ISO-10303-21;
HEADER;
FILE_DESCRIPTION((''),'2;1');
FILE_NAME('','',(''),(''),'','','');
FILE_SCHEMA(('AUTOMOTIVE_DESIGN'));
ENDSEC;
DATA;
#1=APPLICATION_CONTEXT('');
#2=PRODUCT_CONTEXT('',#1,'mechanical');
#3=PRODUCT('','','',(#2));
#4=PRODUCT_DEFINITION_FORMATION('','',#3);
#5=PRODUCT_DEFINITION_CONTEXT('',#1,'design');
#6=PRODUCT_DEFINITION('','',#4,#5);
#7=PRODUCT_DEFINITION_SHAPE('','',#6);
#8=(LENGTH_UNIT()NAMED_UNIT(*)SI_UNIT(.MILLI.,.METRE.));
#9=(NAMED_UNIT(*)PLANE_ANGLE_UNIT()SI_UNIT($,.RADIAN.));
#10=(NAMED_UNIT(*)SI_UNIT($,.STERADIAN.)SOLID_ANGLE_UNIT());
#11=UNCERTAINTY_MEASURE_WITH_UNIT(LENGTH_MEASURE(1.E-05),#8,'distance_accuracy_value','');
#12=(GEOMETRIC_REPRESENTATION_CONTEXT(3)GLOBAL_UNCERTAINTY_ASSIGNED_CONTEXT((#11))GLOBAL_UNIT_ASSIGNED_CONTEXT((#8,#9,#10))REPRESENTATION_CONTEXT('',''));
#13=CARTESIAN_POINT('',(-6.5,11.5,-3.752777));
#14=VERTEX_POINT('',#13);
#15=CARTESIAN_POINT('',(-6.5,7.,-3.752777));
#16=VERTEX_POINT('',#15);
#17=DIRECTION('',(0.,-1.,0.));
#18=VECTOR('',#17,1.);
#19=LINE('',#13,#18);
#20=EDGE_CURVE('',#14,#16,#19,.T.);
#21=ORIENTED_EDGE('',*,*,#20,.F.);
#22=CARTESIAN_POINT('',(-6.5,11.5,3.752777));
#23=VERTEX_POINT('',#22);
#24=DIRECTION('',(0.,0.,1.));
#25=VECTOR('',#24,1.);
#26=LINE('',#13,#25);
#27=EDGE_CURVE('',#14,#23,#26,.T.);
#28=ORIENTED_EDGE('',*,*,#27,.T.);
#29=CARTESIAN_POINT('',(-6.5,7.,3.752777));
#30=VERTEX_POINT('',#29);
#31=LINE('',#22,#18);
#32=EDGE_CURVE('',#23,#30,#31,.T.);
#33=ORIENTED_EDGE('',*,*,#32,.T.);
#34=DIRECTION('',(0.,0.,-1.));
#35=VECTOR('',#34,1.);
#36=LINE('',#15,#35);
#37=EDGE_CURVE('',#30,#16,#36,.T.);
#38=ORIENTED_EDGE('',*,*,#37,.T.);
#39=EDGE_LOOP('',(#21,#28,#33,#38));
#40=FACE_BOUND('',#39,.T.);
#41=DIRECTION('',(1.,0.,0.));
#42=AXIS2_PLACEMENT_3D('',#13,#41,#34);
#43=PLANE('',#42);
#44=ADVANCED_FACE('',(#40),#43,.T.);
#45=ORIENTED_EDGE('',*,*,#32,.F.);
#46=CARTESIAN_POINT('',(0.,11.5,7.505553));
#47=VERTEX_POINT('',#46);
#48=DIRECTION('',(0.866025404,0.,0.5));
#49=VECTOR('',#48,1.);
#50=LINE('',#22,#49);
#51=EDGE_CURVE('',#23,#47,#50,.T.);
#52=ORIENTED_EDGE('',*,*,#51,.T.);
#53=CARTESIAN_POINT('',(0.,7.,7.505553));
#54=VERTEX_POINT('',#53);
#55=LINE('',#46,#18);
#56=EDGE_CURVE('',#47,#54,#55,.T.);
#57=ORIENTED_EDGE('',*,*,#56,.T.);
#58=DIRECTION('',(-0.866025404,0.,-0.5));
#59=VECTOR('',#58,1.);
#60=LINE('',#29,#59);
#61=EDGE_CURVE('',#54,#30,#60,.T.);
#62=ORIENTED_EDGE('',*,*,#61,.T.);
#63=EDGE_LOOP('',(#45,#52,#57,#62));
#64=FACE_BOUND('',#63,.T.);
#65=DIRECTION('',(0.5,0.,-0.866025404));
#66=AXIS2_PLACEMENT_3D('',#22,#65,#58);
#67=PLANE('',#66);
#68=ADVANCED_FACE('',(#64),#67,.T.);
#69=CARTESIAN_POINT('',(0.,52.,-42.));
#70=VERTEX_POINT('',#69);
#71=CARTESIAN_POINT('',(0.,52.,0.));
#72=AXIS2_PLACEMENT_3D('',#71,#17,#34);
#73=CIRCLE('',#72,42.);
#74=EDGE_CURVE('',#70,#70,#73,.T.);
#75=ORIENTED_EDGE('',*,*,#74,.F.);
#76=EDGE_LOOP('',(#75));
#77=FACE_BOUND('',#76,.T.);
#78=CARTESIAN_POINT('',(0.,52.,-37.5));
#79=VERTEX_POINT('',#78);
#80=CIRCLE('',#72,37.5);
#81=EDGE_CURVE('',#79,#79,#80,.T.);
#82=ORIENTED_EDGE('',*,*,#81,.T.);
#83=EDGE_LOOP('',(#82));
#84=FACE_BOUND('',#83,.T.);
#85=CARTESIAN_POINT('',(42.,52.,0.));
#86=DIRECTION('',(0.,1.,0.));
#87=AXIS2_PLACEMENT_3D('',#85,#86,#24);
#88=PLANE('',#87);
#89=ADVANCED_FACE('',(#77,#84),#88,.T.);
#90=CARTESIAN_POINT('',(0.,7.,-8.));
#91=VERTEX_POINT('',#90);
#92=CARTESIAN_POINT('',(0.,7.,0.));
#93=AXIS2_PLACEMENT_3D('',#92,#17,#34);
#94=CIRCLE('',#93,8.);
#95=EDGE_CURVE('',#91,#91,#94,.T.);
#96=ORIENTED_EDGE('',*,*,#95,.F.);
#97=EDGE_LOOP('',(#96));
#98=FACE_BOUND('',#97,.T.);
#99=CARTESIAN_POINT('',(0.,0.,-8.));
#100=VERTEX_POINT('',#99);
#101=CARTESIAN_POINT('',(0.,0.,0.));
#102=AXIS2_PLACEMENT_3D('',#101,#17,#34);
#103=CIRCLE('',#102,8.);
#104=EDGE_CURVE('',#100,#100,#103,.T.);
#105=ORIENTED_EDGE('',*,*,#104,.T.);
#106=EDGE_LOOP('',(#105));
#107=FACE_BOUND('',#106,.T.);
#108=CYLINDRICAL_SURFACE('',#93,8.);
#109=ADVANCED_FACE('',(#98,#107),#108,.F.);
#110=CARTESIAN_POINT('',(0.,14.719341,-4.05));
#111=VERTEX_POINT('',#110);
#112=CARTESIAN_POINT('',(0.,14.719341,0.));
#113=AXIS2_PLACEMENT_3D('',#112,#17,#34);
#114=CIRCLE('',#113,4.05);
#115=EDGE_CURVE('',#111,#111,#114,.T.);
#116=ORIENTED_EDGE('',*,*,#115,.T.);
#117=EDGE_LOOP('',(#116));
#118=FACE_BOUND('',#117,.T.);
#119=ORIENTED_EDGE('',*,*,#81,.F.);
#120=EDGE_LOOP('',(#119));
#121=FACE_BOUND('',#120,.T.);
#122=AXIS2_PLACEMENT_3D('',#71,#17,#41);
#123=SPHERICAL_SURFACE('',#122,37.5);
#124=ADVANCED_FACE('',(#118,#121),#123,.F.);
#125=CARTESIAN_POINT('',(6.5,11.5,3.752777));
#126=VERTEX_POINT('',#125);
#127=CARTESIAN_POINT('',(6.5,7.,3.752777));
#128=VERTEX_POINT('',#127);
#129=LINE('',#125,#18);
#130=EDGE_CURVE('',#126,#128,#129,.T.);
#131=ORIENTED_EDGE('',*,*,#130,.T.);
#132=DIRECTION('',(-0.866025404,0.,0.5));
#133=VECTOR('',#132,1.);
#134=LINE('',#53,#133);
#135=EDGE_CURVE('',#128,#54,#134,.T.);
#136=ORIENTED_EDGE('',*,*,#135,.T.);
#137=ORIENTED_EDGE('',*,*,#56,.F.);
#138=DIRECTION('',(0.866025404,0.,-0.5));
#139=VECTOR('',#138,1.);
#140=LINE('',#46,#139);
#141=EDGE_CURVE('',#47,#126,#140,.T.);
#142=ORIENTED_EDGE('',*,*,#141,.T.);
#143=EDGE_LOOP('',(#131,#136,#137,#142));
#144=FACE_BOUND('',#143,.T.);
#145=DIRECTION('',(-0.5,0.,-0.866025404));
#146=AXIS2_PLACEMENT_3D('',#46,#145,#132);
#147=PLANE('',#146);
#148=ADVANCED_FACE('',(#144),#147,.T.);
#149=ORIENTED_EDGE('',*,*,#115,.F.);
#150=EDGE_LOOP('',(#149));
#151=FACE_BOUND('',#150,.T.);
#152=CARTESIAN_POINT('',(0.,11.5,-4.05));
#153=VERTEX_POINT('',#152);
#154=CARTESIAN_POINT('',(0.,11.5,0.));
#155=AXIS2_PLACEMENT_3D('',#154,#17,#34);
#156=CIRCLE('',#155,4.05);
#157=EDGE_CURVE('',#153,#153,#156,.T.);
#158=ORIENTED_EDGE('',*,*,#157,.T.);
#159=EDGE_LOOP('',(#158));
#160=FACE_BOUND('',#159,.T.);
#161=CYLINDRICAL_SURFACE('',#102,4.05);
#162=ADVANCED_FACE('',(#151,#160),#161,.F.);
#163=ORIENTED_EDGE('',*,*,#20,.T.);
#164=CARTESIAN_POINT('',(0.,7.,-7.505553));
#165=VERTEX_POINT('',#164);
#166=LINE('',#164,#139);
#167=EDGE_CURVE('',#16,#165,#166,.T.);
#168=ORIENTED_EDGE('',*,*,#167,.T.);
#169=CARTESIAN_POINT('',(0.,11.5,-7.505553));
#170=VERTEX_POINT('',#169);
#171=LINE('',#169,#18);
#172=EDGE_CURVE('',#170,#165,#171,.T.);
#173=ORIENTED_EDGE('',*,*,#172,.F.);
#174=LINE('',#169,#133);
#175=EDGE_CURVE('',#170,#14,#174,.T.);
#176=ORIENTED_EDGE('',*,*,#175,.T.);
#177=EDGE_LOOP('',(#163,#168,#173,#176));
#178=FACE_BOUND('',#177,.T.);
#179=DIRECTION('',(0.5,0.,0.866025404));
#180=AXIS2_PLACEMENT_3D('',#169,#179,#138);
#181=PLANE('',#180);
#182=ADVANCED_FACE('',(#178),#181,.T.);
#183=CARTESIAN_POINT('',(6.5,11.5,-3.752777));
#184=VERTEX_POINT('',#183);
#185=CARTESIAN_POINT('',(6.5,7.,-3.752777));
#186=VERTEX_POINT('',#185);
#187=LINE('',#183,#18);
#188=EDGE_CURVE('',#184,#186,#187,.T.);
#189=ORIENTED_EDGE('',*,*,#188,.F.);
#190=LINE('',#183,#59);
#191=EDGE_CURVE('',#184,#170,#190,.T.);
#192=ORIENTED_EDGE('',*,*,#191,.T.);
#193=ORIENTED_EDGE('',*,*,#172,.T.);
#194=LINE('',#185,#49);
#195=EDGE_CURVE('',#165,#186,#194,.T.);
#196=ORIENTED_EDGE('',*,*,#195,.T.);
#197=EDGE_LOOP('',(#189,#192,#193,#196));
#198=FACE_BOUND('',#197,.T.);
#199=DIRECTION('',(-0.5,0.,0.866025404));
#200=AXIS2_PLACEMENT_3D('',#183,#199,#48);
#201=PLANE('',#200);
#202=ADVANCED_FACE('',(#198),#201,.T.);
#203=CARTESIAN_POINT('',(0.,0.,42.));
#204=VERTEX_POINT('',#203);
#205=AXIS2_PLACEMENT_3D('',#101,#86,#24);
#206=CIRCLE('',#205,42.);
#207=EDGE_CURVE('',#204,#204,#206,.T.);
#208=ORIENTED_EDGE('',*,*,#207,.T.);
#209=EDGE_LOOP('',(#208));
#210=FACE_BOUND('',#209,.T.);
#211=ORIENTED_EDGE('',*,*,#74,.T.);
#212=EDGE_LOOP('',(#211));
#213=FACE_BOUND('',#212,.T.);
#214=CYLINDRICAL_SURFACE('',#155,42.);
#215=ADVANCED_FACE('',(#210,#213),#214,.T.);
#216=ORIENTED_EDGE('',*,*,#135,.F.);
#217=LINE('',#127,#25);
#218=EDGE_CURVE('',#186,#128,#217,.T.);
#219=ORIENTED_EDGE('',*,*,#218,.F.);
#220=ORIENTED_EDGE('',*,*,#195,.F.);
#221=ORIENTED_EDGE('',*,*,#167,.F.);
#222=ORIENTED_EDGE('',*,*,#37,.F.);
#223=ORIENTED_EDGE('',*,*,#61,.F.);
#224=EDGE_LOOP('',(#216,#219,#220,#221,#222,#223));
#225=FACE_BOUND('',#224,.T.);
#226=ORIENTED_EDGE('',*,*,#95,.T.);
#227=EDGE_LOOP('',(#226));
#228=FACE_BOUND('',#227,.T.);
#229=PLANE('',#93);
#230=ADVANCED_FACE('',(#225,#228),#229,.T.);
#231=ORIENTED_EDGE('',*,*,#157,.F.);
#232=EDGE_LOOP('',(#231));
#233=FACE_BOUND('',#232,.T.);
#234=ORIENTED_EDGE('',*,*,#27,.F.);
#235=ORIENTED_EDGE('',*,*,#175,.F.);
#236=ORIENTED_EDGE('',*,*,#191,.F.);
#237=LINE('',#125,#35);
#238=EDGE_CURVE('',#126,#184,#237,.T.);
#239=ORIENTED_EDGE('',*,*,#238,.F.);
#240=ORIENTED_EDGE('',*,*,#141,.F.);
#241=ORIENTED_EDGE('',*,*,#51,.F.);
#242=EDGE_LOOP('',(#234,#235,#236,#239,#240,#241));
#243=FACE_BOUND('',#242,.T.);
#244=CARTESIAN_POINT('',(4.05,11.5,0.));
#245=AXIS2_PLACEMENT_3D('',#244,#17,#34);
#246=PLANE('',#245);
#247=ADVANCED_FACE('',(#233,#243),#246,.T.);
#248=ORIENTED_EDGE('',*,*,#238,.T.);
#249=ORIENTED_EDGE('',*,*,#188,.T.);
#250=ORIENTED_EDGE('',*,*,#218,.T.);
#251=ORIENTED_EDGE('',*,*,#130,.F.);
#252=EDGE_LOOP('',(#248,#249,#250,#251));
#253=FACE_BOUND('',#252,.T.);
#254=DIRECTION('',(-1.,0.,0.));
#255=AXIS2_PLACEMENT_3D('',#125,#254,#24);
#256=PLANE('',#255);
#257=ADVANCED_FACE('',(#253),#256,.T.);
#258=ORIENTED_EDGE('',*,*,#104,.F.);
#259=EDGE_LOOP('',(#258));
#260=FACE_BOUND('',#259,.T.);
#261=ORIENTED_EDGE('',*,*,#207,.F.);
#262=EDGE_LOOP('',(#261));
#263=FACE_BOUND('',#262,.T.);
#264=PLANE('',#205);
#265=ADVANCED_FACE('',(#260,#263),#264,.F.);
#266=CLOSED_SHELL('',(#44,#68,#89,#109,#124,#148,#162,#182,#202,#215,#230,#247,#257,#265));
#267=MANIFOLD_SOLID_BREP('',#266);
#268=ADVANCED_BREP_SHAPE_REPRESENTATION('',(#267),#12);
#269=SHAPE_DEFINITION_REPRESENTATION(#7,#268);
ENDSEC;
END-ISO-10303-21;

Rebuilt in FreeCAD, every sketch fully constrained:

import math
import FreeCAD as App
import Part
import Sketcher

V = App.Vector
Q = App.Units.Quantity

doc = App.newDocument("Part")
body = doc.addObject("PartDesign::Body", "Body")

sketch1 = body.newObject("Sketcher::SketchObject", "Sketch")
sketch1.AttachmentSupport = (doc.getObject("XZ_Plane"), [""])
sketch1.MapMode = "FlatFace"
sketch1.addGeometry(Part.Circle(V(0, 0, 0), V(0, 0, 1), 42), False)
sketch1.addGeometry(Part.LineSegment(V(-6, -4, 0), V(0, -8, 0)), False)
sketch1.addGeometry(Part.LineSegment(V(0, -8, 0), V(6, -4, 0)), False)
sketch1.addGeometry(Part.LineSegment(V(6, -4, 0), V(6, 4, 0)), False)
sketch1.addGeometry(Part.LineSegment(V(6, 4, 0), V(0, 8, 0)), False)
sketch1.addGeometry(Part.LineSegment(V(0, 8, 0), V(-6, 4, 0)), False)
sketch1.addGeometry(Part.LineSegment(V(-6, 4, 0), V(-6, -4, 0)), False)
sketch1.addConstraint(Sketcher.Constraint("Coincident", 1, 2, 2, 1))
sketch1.addConstraint(Sketcher.Constraint("Coincident", 2, 2, 3, 1))
sketch1.addConstraint(Sketcher.Constraint("Coincident", 3, 2, 4, 1))
sketch1.addConstraint(Sketcher.Constraint("Coincident", 4, 2, 5, 1))
sketch1.addConstraint(Sketcher.Constraint("Coincident", 5, 2, 6, 1))
sketch1.addConstraint(Sketcher.Constraint("Coincident", 6, 2, 1, 1))
sketch1.addConstraint(Sketcher.Constraint("Vertical", 3))
sketch1.addConstraint(Sketcher.Constraint("Vertical", 6))
sketch1.addConstraint(Sketcher.Constraint("Coincident", 0, 3, -1, 1))
sketch1.addConstraint(Sketcher.Constraint("Symmetric", 1, 2, 4, 2, -1, 1))
sketch1.addConstraint(Sketcher.Constraint("Symmetric", 2, 2, 5, 2, -1, 1))
sketch1.addConstraint(Sketcher.Constraint("PointOnObject", 1, 2, -2))
sketch1.addConstraint(Sketcher.Constraint("Parallel", 1, 4))
sketch1.addConstraint(Sketcher.Constraint("Horizontal", 3, 2, 5, 2))
sketch1.addConstraint(Sketcher.Constraint("Diameter", 0, 84.0))
sketch1.addConstraint(Sketcher.Constraint("Angle", 1, Q("-30 deg")))
sketch1.addConstraint(Sketcher.Constraint("DistanceX", 5, 2, 3, 2, 13.0))
sketch1.addConstraint(Sketcher.Constraint("DistanceY", 3, 1, 3, 2, 7.505554))
pad1 = body.newObject("PartDesign::Pad", "Pad")
pad1.Profile = sketch1
pad1.Length = 11.5
pad1.Reversed = True

sketch2 = body.newObject("Sketcher::SketchObject", "Sketch001")
sketch2.AttachmentSupport = (doc.getObject("XZ_Plane"), [""])
sketch2.MapMode = "FlatFace"
sketch2.addGeometry(Part.Circle(V(0, 0, 0), V(0, 0, 1), 8), False)
sketch2.addConstraint(Sketcher.Constraint("Coincident", 0, 3, -1, 1))
sketch2.addConstraint(Sketcher.Constraint("Diameter", 0, 16.0))
pocket1 = body.newObject("PartDesign::Pocket", "Pocket")
pocket1.Profile = sketch2
pocket1.Length = 7

sketch3 = body.newObject("Sketcher::SketchObject", "Sketch002")
sketch3.AttachmentSupport = (doc.getObject("XY_Plane"), [""])
sketch3.MapMode = "FlatFace"
sketch3.addGeometry(Part.LineSegment(V(4, 14.7, 0), V(4, 11.5, 0)), False)
sketch3.addGeometry(Part.LineSegment(V(4, 11.5, 0), V(42, 11.5, 0)), False)
sketch3.addGeometry(Part.LineSegment(V(42, 11.5, 0), V(42, 52, 0)), False)
sketch3.addGeometry(Part.LineSegment(V(42, 52, 0), V(37.5, 52, 0)), False)
sketch3.addGeometry(Part.ArcOfCircle(Part.Circle(V(0, 52, 0), V(0, 0, 1), 37.5), math.radians(-84), math.radians(0)), False)
sketch3.addConstraint(Sketcher.Constraint("Coincident", 0, 2, 1, 1))
sketch3.addConstraint(Sketcher.Constraint("Coincident", 1, 2, 2, 1))
sketch3.addConstraint(Sketcher.Constraint("Coincident", 2, 2, 3, 1))
sketch3.addConstraint(Sketcher.Constraint("Coincident", 3, 2, 4, 2))
sketch3.addConstraint(Sketcher.Constraint("Coincident", 4, 1, 0, 1))
sketch3.addConstraint(Sketcher.Constraint("Vertical", 0))
sketch3.addConstraint(Sketcher.Constraint("Horizontal", 1))
sketch3.addConstraint(Sketcher.Constraint("Vertical", 2))
sketch3.addConstraint(Sketcher.Constraint("Horizontal", 3))
sketch3.addConstraint(Sketcher.Constraint("PointOnObject", 4, 3, -2))
sketch3.addConstraint(Sketcher.Constraint("Horizontal", 4, 3, 2, 2))
sketch3.addConstraint(Sketcher.Constraint("Radius", 4, 37.5))
sketch3.addConstraint(Sketcher.Constraint("DistanceX", 3, 2, 3, 1, 4.5))
sketch3.addConstraint(Sketcher.Constraint("DistanceY", 2, 1, 2, 2, 40.5))
sketch3.addConstraint(Sketcher.Constraint("DistanceY", -1, 1, 4, 3, 52.0))
sketch3.addConstraint(Sketcher.Constraint("DistanceX", 1, 1, 1, 2, 37.95))
revolution = body.newObject("PartDesign::Revolution", "Revolution")
revolution.Profile = sketch3
revolution.ReferenceAxis = (sketch3, ["V_Axis"])
revolution.Angle = 360

doc.recompute()
